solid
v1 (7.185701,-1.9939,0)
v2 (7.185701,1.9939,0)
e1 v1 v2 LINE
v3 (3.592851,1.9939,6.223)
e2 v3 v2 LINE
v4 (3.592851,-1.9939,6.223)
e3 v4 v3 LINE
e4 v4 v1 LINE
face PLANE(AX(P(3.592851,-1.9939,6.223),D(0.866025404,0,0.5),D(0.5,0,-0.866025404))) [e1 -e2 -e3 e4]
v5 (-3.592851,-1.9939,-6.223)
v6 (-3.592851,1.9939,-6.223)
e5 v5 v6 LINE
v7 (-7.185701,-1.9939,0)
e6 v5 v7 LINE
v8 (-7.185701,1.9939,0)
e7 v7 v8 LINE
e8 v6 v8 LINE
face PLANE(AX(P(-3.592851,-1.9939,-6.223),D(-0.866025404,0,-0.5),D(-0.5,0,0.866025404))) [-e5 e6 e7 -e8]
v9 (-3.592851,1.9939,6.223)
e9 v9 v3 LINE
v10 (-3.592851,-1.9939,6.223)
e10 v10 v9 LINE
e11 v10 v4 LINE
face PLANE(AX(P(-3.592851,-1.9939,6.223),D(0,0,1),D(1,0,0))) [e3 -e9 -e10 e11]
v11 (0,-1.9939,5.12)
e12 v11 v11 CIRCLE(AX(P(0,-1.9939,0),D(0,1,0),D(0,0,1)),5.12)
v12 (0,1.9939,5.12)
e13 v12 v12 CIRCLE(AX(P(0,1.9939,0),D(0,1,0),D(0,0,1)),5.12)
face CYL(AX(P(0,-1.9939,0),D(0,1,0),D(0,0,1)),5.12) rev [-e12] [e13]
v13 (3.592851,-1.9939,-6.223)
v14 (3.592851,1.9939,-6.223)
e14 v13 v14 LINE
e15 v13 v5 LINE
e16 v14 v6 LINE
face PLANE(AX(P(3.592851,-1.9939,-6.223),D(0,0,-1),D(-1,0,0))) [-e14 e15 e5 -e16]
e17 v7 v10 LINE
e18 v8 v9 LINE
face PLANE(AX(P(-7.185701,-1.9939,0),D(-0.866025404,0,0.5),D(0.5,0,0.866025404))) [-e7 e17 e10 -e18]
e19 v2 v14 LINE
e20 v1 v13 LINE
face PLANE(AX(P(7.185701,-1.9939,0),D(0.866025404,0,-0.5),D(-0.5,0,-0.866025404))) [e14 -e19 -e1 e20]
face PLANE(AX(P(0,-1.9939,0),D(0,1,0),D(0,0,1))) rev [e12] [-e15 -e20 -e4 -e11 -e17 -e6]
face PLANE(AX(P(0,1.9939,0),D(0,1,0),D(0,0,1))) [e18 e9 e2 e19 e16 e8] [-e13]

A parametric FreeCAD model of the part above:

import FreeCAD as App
import Part
import Sketcher
Q = App.Units.Quantity

doc = App.newDocument("Part")
body = doc.addObject("PartDesign::Body", "Body")

sketch1 = body.newObject("Sketcher::SketchObject", "Sketch")
sketch1.AttachmentSupport = (doc.getObject("XZ_Plane"), [""])
sketch1.MapMode = "FlatFace"
sketch1.addGeometry([
    Part.LineSegment(App.Vector(-4, -6, 0), App.Vector(-7, 0, 0)),
    Part.LineSegment(App.Vector(-7, 0, 0), App.Vector(-4, 6, 0)),
    Part.LineSegment(App.Vector(-4, 6, 0), App.Vector(4, 6, 0)),
    Part.LineSegment(App.Vector(4, 6, 0), App.Vector(7, 0, 0)),
    Part.LineSegment(App.Vector(7, 0, 0), App.Vector(4, -6, 0)),
    Part.LineSegment(App.Vector(4, -6, 0), App.Vector(-4, -6, 0)),
    Part.Circle(App.Vector(0, 0, 0), App.Vector(0, 0, 1), 5),
], False)
sketch1.addConstraint([
    Sketcher.Constraint("Coincident", 0, 2, 1, 1),
    Sketcher.Constraint("Coincident", 1, 2, 2, 1),
    Sketcher.Constraint("Coincident", 2, 2, 3, 1),
    Sketcher.Constraint("Coincident", 3, 2, 4, 1),
    Sketcher.Constraint("Coincident", 4, 2, 5, 1),
    Sketcher.Constraint("Coincident", 5, 2, 0, 1),
    Sketcher.Constraint("Horizontal", 2),
    Sketcher.Constraint("Horizontal", 5),
    Sketcher.Constraint("Coincident", 6, 3, -1, 1),
    Sketcher.Constraint("Symmetric", 0, 2, 3, 2, -1, 1),
    Sketcher.Constraint("Symmetric", 1, 2, 4, 2, -1, 1),
    Sketcher.Constraint("PointOnObject", 0, 2, -1),
    Sketcher.Constraint("Parallel", 0, 3),
    Sketcher.Constraint("Vertical", 2, 2, 4, 2),
    Sketcher.Constraint("Diameter", 6, Q("10.24 mm")),
    Sketcher.Constraint("Angle", 0, Q("120 deg")),
    Sketcher.Constraint("DistanceX", 2, 1, 2, 2, Q("7.185701 mm")),
    Sketcher.Constraint("DistanceY", -1, 1, 1, 2, Q("6.223 mm")),
])
pad1 = body.newObject("PartDesign::Pad", "Pad")
pad1.Profile = sketch1
pad1.Type = "TwoLengths"
pad1.Length = 1.9939
pad1.Length2 = 1.9939
pad1.Reversed = True

doc.recompute()
